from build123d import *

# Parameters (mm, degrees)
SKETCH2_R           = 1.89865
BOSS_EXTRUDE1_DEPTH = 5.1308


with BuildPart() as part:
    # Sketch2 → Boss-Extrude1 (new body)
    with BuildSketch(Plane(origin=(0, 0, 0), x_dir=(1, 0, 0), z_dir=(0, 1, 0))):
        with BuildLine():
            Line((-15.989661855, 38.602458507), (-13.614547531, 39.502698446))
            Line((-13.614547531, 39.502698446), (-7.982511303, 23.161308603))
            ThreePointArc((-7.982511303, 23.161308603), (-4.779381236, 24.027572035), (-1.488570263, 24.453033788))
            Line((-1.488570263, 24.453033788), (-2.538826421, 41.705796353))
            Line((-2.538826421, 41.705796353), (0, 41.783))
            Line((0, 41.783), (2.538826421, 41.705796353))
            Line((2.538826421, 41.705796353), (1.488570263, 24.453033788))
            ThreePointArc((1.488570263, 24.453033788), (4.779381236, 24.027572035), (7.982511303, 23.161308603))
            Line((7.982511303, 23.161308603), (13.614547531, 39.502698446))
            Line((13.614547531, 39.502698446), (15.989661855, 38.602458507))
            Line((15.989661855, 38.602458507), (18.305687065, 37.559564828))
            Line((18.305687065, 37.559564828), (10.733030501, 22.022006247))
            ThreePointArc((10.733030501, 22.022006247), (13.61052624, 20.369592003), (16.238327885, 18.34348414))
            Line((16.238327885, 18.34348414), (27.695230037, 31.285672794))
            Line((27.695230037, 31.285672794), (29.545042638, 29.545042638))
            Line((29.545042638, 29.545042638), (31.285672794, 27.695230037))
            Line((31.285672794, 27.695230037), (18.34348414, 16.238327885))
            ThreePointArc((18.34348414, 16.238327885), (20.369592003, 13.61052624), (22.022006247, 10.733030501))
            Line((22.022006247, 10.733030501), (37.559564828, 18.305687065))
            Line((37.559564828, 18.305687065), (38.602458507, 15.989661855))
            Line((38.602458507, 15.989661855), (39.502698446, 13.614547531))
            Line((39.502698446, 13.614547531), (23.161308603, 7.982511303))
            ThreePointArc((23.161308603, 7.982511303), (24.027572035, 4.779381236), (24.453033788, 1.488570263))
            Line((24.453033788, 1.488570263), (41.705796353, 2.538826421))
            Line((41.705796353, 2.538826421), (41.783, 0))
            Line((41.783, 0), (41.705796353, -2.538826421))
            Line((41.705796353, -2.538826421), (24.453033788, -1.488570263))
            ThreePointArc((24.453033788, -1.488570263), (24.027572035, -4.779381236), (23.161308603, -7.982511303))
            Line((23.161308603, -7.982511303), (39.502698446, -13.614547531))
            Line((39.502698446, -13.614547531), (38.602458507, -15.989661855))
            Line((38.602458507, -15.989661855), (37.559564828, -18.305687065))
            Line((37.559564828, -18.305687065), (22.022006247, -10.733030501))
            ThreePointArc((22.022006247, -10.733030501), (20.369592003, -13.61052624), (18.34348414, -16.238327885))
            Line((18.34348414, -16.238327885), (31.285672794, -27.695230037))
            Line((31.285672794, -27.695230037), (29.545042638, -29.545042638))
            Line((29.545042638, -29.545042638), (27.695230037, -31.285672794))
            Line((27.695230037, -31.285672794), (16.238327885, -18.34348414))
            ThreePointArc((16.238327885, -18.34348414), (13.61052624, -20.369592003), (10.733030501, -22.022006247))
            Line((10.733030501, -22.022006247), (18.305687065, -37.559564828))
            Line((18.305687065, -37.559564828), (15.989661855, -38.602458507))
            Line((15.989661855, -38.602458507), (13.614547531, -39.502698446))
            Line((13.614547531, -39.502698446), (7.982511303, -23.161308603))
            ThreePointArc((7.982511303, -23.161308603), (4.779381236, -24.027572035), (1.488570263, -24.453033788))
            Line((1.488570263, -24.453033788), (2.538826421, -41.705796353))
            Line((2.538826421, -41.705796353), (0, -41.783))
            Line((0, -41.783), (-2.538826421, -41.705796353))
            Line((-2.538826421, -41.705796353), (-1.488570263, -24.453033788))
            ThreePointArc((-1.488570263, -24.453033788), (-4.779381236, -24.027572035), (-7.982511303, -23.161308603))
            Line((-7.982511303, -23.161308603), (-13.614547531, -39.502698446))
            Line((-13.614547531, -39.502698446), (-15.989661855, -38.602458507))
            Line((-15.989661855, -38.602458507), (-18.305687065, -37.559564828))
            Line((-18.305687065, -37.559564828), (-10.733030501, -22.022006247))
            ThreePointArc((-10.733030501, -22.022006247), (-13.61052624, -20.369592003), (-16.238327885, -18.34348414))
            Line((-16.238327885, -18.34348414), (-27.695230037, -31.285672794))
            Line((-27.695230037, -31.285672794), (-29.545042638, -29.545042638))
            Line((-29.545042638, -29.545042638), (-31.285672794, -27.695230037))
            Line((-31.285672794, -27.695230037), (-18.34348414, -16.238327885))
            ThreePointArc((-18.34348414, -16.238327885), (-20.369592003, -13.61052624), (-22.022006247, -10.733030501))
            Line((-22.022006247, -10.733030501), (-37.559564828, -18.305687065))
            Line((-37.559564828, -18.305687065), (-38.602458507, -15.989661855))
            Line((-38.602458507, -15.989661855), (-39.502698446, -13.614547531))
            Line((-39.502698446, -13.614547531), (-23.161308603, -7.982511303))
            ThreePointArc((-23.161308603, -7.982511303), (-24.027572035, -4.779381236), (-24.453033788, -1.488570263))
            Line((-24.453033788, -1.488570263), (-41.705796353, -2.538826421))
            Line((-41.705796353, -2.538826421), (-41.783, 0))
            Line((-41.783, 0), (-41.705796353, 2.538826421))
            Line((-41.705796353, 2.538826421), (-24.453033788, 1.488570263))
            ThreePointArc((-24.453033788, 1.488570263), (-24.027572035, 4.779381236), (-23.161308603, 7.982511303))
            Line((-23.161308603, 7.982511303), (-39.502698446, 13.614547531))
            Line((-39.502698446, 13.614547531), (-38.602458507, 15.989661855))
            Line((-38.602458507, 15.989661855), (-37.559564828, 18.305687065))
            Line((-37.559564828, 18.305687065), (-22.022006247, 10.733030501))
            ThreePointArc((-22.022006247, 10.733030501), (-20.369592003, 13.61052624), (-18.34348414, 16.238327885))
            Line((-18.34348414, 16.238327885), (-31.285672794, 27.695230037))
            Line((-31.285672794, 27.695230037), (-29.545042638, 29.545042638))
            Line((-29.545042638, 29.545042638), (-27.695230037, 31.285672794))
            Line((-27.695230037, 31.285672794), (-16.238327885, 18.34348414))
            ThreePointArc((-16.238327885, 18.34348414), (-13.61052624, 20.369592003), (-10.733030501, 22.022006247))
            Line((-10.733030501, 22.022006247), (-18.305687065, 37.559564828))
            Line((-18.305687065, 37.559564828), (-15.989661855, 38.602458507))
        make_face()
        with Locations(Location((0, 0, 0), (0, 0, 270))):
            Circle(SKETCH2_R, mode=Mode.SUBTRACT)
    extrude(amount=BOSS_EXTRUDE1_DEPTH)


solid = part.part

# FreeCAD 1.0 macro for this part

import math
import FreeCAD as App
import Part
import Sketcher

V = App.Vector
Q = App.Units.Quantity

doc = App.newDocument("Part")
body = doc.addObject("PartDesign::Body", "Body")

sketch1 = doc.addObject("Sketcher::SketchObject", "Sketch")
body.addObject(sketch1)
sketch1.AttachmentSupport = (doc.XZ_Plane, [""])
sketch1.MapMode = "FlatFace"
sketch1.addGeometry([
    Part.LineSegment(V(-13.614548, -39.502698, 0), V(-15.989662, -38.602459, 0)),
    Part.LineSegment(V(-15.989662, -38.602459, 0), V(-18.305687, -37.559565, 0)),
    Part.LineSegment(V(-18.305687, -37.559565, 0), V(-10.733031, -22.022006, 0)),
    Part.ArcOfCircle(Part.Circle(V(0, 0, 0), V(0, 0, 1), 24.4983), math.radians(-131.516437), math.radians(-115.983563)),
    Part.LineSegment(V(-16.238328, -18.343484, 0), V(-27.69523, -31.285673, 0)),
    Part.LineSegment(V(-27.69523, -31.285673, 0), V(-29.545043, -29.545043, 0)),
    Part.LineSegment(V(-29.545043, -29.545043, 0), V(-31.285673, -27.69523, 0)),
    Part.LineSegment(V(-31.285673, -27.69523, 0), V(-18.343484, -16.238328, 0)),
    Part.ArcOfCircle(Part.Circle(V(0, 0, 0), V(0, 0, 1), 24.4983), math.radians(-154.016437), math.radians(-138.483563)),
    Part.LineSegment(V(-22.022006, -10.733031, 0), V(-37.559565, -18.305687, 0)),
    Part.LineSegment(V(-37.559565, -18.305687, 0), V(-38.602459, -15.989662, 0)),
    Part.LineSegment(V(-38.602459, -15.989662, 0), V(-39.502698, -13.614548, 0)),
    Part.LineSegment(V(-39.502698, -13.614548, 0), V(-23.161309, -7.982511, 0)),
    Part.ArcOfCircle(Part.Circle(V(0, 0, 0), V(0, 0, 1), 24.4983), math.radians(-176.516437), math.radians(-160.983563)),
    Part.LineSegment(V(-24.453034, -1.48857, 0), V(-41.705796, -2.538826, 0)),
    Part.LineSegment(V(-41.705796, -2.538826, 0), V(-41.783, 0, 0)),
    Part.LineSegment(V(-41.783, 0, 0), V(-41.705796, 2.538826, 0)),
    Part.LineSegment(V(-41.705796, 2.538826, 0), V(-24.453034, 1.48857, 0)),
    Part.ArcOfCircle(Part.Circle(V(0, 0, 0), V(0, 0, 1), 24.4983), math.radians(160.983563), math.radians(176.516437)),
    Part.LineSegment(V(-23.161309, 7.982511, 0), V(-39.502698, 13.614548, 0)),
    Part.LineSegment(V(-39.502698, 13.614548, 0), V(-38.602459, 15.989662, 0)),
    Part.LineSegment(V(-38.602459, 15.989662, 0), V(-37.559565, 18.305687, 0)),
    Part.LineSegment(V(-37.559565, 18.305687, 0), V(-22.022006, 10.733031, 0)),
    Part.ArcOfCircle(Part.Circle(V(0, 0, 0), V(0, 0, 1), 24.4983), math.radians(138.483563), math.radians(154.016437)),
    Part.LineSegment(V(-18.343484, 16.238328, 0), V(-31.285673, 27.69523, 0)),
    Part.LineSegment(V(-31.285673, 27.69523, 0), V(-29.545043, 29.545043, 0)),
    Part.LineSegment(V(-29.545043, 29.545043, 0), V(-27.69523, 31.285673, 0)),
    Part.LineSegment(V(-27.69523, 31.285673, 0), V(-16.238328, 18.343484, 0)),
    Part.ArcOfCircle(Part.Circle(V(0, 0, 0), V(0, 0, 1), 24.4983), math.radians(115.983563), math.radians(131.516437)),
    Part.LineSegment(V(-10.733031, 22.022006, 0), V(-18.305687, 37.559565, 0)),
    Part.LineSegment(V(-18.305687, 37.559565, 0), V(-15.989662, 38.602459, 0)),
    Part.LineSegment(V(-15.989662, 38.602459, 0), V(-13.614548, 39.502698, 0)),
    Part.LineSegment(V(-13.614548, 39.502698, 0), V(-7.982511, 23.161309, 0)),
    Part.ArcOfCircle(Part.Circle(V(0, 0, 0), V(0, 0, 1), 24.4983), math.radians(93.483563), math.radians(109.016437)),
    Part.LineSegment(V(-1.48857, 24.453034, 0), V(-2.538826, 41.705796, 0)),
    Part.LineSegment(V(-2.538826, 41.705796, 0), V(0, 41.783, 0)),
    Part.LineSegment(V(0, 41.783, 0), V(2.538826, 41.705796, 0)),
    Part.LineSegment(V(2.538826, 41.705796, 0), V(1.48857, 24.453034, 0)),
    Part.ArcOfCircle(Part.Circle(V(0, 0, 0), V(0, 0, 1), 24.4983), math.radians(70.983563), math.radians(86.516437)),
    Part.LineSegment(V(7.982511, 23.161309, 0), V(13.614548, 39.502698, 0)),
    Part.LineSegment(V(13.614548, 39.502698, 0), V(15.989662, 38.602459, 0)),
    Part.LineSegment(V(15.989662, 38.602459, 0), V(18.305687, 37.559565, 0)),
    Part.LineSegment(V(18.305687, 37.559565, 0), V(10.733031, 22.022006, 0)),
    Part.ArcOfCircle(Part.Circle(V(0, 0, 0), V(0, 0, 1), 24.4983), math.radians(48.483563), math.radians(64.016437)),
    Part.LineSegment(V(16.238328, 18.343484, 0), V(27.69523, 31.285673, 0)),
    Part.LineSegment(V(27.69523, 31.285673, 0), V(29.545043, 29.545043, 0)),
    Part.LineSegment(V(29.545043, 29.545043, 0), V(31.285673, 27.69523, 0)),
    Part.LineSegment(V(31.285673, 27.69523, 0), V(18.343484, 16.238328, 0)),
    Part.ArcOfCircle(Part.Circle(V(0, 0, 0), V(0, 0, 1), 24.4983), math.radians(25.983563), math.radians(41.516437)),
    Part.LineSegment(V(22.022006, 10.733031, 0), V(37.559565, 18.305687, 0)),
    Part.LineSegment(V(37.559565, 18.305687, 0), V(38.602459, 15.989662, 0)),
    Part.LineSegment(V(38.602459, 15.989662, 0), V(39.502698, 13.614548, 0)),
    Part.LineSegment(V(39.502698, 13.614548, 0), V(23.161309, 7.982511, 0)),
    Part.ArcOfCircle(Part.Circle(V(0, 0, 0), V(0, 0, 1), 24.4983), math.radians(3.483563), math.radians(19.016437)),
    Part.LineSegment(V(24.453034, 1.48857, 0), V(41.705796, 2.538826, 0)),
    Part.LineSegment(V(41.705796, 2.538826, 0), V(41.783, 0, 0)),
    Part.LineSegment(V(41.783, 0, 0), V(41.705796, -2.538826, 0)),
    Part.LineSegment(V(41.705796, -2.538826, 0), V(24.453034, -1.48857, 0)),
    Part.ArcOfCircle(Part.Circle(V(0, 0, 0), V(0, 0, 1), 24.4983), math.radians(-19.016437), math.radians(-3.483563)),
    Part.LineSegment(V(23.161309, -7.982511, 0), V(39.502698, -13.614548, 0)),
    Part.LineSegment(V(39.502698, -13.614548, 0), V(38.602459, -15.989662, 0)),
    Part.LineSegment(V(38.602459, -15.989662, 0), V(37.559565, -18.305687, 0)),
    Part.LineSegment(V(37.559565, -18.305687, 0), V(22.022006, -10.733031, 0)),
    Part.ArcOfCircle(Part.Circle(V(0, 0, 0), V(0, 0, 1), 24.4983), math.radians(-41.516437), math.radians(-25.983563)),
    Part.LineSegment(V(18.343484, -16.238328, 0), V(31.285673, -27.69523, 0)),
    Part.LineSegment(V(31.285673, -27.69523, 0), V(29.545043, -29.545043, 0)),
    Part.LineSegment(V(29.545043, -29.545043, 0), V(27.69523, -31.285673, 0)),
    Part.LineSegment(V(27.69523, -31.285673, 0), V(16.238328, -18.343484, 0)),
    Part.ArcOfCircle(Part.Circle(V(0, 0, 0), V(0, 0, 1), 24.4983), math.radians(-64.016437), math.radians(-48.483563)),
    Part.LineSegment(V(10.733031, -22.022006, 0), V(18.305687, -37.559565, 0)),
    Part.LineSegment(V(18.305687, -37.559565, 0), V(15.989662, -38.602459, 0)),
    Part.LineSegment(V(15.989662, -38.602459, 0), V(13.614548, -39.502698, 0)),
    Part.LineSegment(V(13.614548, -39.502698, 0), V(7.982511, -23.161309, 0)),
    Part.ArcOfCircle(Part.Circle(V(0, 0, 0), V(0, 0, 1), 24.4983), math.radians(-86.516437), math.radians(-70.983563)),
    Part.LineSegment(V(1.48857, -24.453034, 0), V(2.538826, -41.705796, 0)),
    Part.LineSegment(V(2.538826, -41.705796, 0), V(0, -41.783, 0)),
    Part.LineSegment(V(0, -41.783, 0), V(-2.538826, -41.705796, 0)),
    Part.LineSegment(V(-2.538826, -41.705796, 0), V(-1.48857, -24.453034, 0)),
    Part.ArcOfCircle(Part.Circle(V(0, 0, 0), V(0, 0, 1), 24.4983), math.radians(-109.016437), math.radians(-93.483563)),
    Part.LineSegment(V(-7.982511, -23.161309, 0), V(-13.614548, -39.502698, 0)),
    Part.Circle(V(0, 0, 0), V(0, 0, 1), 1.89865),
], False)
sketch1.addConstraint([
    Sketcher.Constraint("Coincident", 0, 2, 1, 1),
    Sketcher.Constraint("Coincident", 1, 2, 2, 1),
    Sketcher.Constraint("Coincident", 2, 2, 3, 2),
    Sketcher.Constraint("Coincident", 3, 1, 4, 1),
    Sketcher.Constraint("Coincident", 4, 2, 5, 1),
    Sketcher.Constraint("Coincident", 5, 2, 6, 1),
    Sketcher.Constraint("Coincident", 6, 2, 7, 1),
    Sketcher.Constraint("Coincident", 7, 2, 8, 2),
    Sketcher.Constraint("Coincident", 8, 1, 9, 1),
    Sketcher.Constraint("Coincident", 9, 2, 10, 1),
    Sketcher.Constraint("Coincident", 10, 2, 11, 1),
    Sketcher.Constraint("Coincident", 11, 2, 12, 1),
    Sketcher.Constraint("Coincident", 12, 2, 13, 2),
    Sketcher.Constraint("Coincident", 13, 1, 14, 1),
    Sketcher.Constraint("Coincident", 14, 2, 15, 1),
    Sketcher.Constraint("Coincident", 15, 2, 16, 1),
    Sketcher.Constraint("Coincident", 16, 2, 17, 1),
    Sketcher.Constraint("Coincident", 17, 2, 18, 2),
    Sketcher.Constraint("Coincident", 18, 1, 19, 1),
    Sketcher.Constraint("Coincident", 19, 2, 20, 1),
    Sketcher.Constraint("Coincident", 20, 2, 21, 1),
    Sketcher.Constraint("Coincident", 21, 2, 22, 1),
    Sketcher.Constraint("Coincident", 22, 2, 23, 2),
    Sketcher.Constraint("Coincident", 23, 1, 24, 1),
    Sketcher.Constraint("Coincident", 24, 2, 25, 1),
    Sketcher.Constraint("Coincident", 25, 2, 26, 1),
    Sketcher.Constraint("Coincident", 26, 2, 27, 1),
    Sketcher.Constraint("Coincident", 27, 2, 28, 2),
    Sketcher.Constraint("Coincident", 28, 1, 29, 1),
    Sketcher.Constraint("Coincident", 29, 2, 30, 1),
    Sketcher.Constraint("Coincident", 30, 2, 31, 1),
    Sketcher.Constraint("Coincident", 31, 2, 32, 1),
    Sketcher.Constraint("Coincident", 32, 2, 33, 2),
    Sketcher.Constraint("Coincident", 33, 1, 34, 1),
    Sketcher.Constraint("Coincident", 34, 2, 35, 1),
    Sketcher.Constraint("Coincident", 35, 2, 36, 1),
    Sketcher.Constraint("Coincident", 36, 2, 37, 1),
    Sketcher.Constraint("Coincident", 37, 2, 38, 2),
    Sketcher.Constraint("Coincident", 38, 1, 39, 1),
    Sketcher.Constraint("Coincident", 39, 2, 40, 1),
    Sketcher.Constraint("Coincident", 40, 2, 41, 1),
    Sketcher.Constraint("Coincident", 41, 2, 42, 1),
    Sketcher.Constraint("Coincident", 42, 2, 43, 2),
    Sketcher.Constraint("Coincident", 43, 1, 44, 1),
    Sketcher.Constraint("Coincident", 44, 2, 45, 1),
    Sketcher.Constraint("Coincident", 45, 2, 46, 1),
    Sketcher.Constraint("Coincident", 46, 2, 47, 1),
    Sketcher.Constraint("Coincident", 47, 2, 48, 2),
    Sketcher.Constraint("Coincident", 48, 1, 49, 1),
    Sketcher.Constraint("Coincident", 49, 2, 50, 1),
    Sketcher.Constraint("Coincident", 50, 2, 51, 1),
    Sketcher.Constraint("Coincident", 51, 2, 52, 1),
    Sketcher.Constraint("Coincident", 52, 2, 53, 2),
    Sketcher.Constraint("Coincident", 53, 1, 54, 1),
    Sketcher.Constraint("Coincident", 54, 2, 55, 1),
    Sketcher.Constraint("Coincident", 55, 2, 56, 1),
    Sketcher.Constraint("Coincident", 56, 2, 57, 1),
    Sketcher.Constraint("Coincident", 57, 2, 58, 2),
    Sketcher.Constraint("Coincident", 58, 1, 59, 1),
    Sketcher.Constraint("Coincident", 59, 2, 60, 1),
    Sketcher.Constraint("Coincident", 60, 2, 61, 1),
    Sketcher.Constraint("Coincident", 61, 2, 62, 1),
    Sketcher.Constraint("Coincident", 62, 2, 63, 2),
    Sketcher.Constraint("Coincident", 63, 1, 64, 1),
    Sketcher.Constraint("Coincident", 64, 2, 65, 1),
    Sketcher.Constraint("Coincident", 65, 2, 66, 1),
    Sketcher.Constraint("Coincident", 66, 2, 67, 1),
    Sketcher.Constraint("Coincident", 67, 2, 68, 2),
    Sketcher.Constraint("Coincident", 68, 1, 69, 1),
    Sketcher.Constraint("Coincident", 69, 2, 70, 1),
    Sketcher.Constraint("Coincident", 70, 2, 71, 1),
    Sketcher.Constraint("Coincident", 71, 2, 72, 1),
    Sketcher.Constraint("Coincident", 72, 2, 73, 2),
    Sketcher.Constraint("Coincident", 73, 1, 74, 1),
    Sketcher.Constraint("Coincident", 74, 2, 75, 1),
    Sketcher.Constraint("Coincident", 75, 2, 76, 1),
    Sketcher.Constraint("Coincident", 76, 2, 77, 1),
    Sketcher.Constraint("Coincident", 77, 2, 78, 2),
    Sketcher.Constraint("Coincident", 78, 1, 79, 1),
    Sketcher.Constraint("Coincident", 79, 2, 0, 1),
    Sketcher.Constraint("Coincident", 3, 3, -1, 1),
    Sketcher.Constraint("Coincident", 8, 3, -1, 1),
    Sketcher.Constraint("Coincident", 13, 3, -1, 1),
    Sketcher.Constraint("Coincident", 18, 3, -1, 1),
    Sketcher.Constraint("Coincident", 23, 3, -1, 1),
    Sketcher.Constraint("Coincident", 28, 3, -1, 1),
    Sketcher.Constraint("Coincident", 33, 3, -1, 1),
    Sketcher.Constraint("Coincident", 38, 3, -1, 1),
    Sketcher.Constraint("Coincident", 43, 3, -1, 1),
    Sketcher.Constraint("Coincident", 48, 3, -1, 1),
    Sketcher.Constraint("Coincident", 53, 3, -1, 1),
    Sketcher.Constraint("Coincident", 58, 3, -1, 1),
    Sketcher.Constraint("Coincident", 63, 3, -1, 1),
    Sketcher.Constraint("Coincident", 68, 3, -1, 1),
    Sketcher.Constraint("Coincident", 73, 3, -1, 1),
    Sketcher.Constraint("Coincident", 78, 3, -1, 1),
    Sketcher.Constraint("Coincident", 80, 3, -1, 1),
    Sketcher.Constraint("Equal", 3, 8),
    Sketcher.Constraint("Equal", 8, 13),
    Sketcher.Constraint("Equal", 13, 18),
    Sketcher.Constraint("Equal", 18, 23),
    Sketcher.Constraint("Equal", 23, 28),
    Sketcher.Constraint("Equal", 28, 33),
    Sketcher.Constraint("Equal", 33, 38),
    Sketcher.Constraint("Equal", 38, 43),
    Sketcher.Constraint("Equal", 43, 48),
    Sketcher.Constraint("Equal", 48, 53),
    Sketcher.Constraint("Equal", 53, 58),
    Sketcher.Constraint("Equal", 58, 63),
    Sketcher.Constraint("Equal", 63, 68),
    Sketcher.Constraint("Equal", 68, 73),
    Sketcher.Constraint("Equal", 73, 78),
    Sketcher.Constraint("Symmetric", 0, 2, 40, 2, -1, 1),
    Sketcher.Constraint("Symmetric", 1, 2, 41, 2, -1, 1),
    Sketcher.Constraint("Symmetric", 4, 2, 44, 2, -1, 1),
    Sketcher.Constraint("Symmetric", 5, 2, 45, 2, -1, 1),
    Sketcher.Constraint("Symmetric", 6, 2, 46, 2, -1, 1),
    Sketcher.Constraint("Symmetric", 9, 2, 49, 2, -1, 1),
    Sketcher.Constraint("Symmetric", 10, 2, 50, 2, -1, 1),
    Sketcher.Constraint("Symmetric", 11, 2, 51, 2, -1, 1),
    Sketcher.Constraint("Symmetric", 14, 2, 54, 2, -1, 1),
    Sketcher.Constraint("Symmetric", 15, 2, 55, 2, -1, 1),
    Sketcher.Constraint("Symmetric", 16, 2, 56, 2, -1, 1),
    Sketcher.Constraint("Symmetric", 19, 2, 59, 2, -1, 1),
    Sketcher.Constraint("Symmetric", 20, 2, 60, 2, -1, 1),
    Sketcher.Constraint("Symmetric", 21, 2, 61, 2, -1, 1),
    Sketcher.Constraint("Symmetric", 24, 2, 64, 2, -1, 1),
    Sketcher.Constraint("Symmetric", 25, 2, 65, 2, -1, 1),
    Sketcher.Constraint("Symmetric", 26, 2, 66, 2, -1, 1),
    Sketcher.Constraint("Symmetric", 29, 2, 69, 2, -1, 1),
    Sketcher.Constraint("Symmetric", 30, 2, 70, 2, -1, 1),
    Sketcher.Constraint("Symmetric", 31, 2, 71, 2, -1, 1),
    Sketcher.Constraint("Symmetric", 34, 2, 74, 2, -1, 1),
    Sketcher.Constraint("Symmetric", 35, 2, 75, 2, -1, 1),
    Sketcher.Constraint("Symmetric", 36, 2, 76, 2, -1, 1),
    Sketcher.Constraint("Symmetric", 39, 2, 79, 2, -1, 1),
    Sketcher.Constraint("Symmetric", 34, 2, 36, 2, -2),
    Sketcher.Constraint("Symmetric", 31, 2, 39, 2, -2),
    Sketcher.Constraint("Symmetric", 30, 2, 40, 2, -2),
    Sketcher.Constraint("Symmetric", 29, 2, 41, 2, -2),
    Sketcher.Constraint("Symmetric", 26, 2, 44, 2, -2),
    Sketcher.Constraint("Symmetric", 25, 2, 45, 2, -2),
    Sketcher.Constraint("Symmetric", 24, 2, 46, 2, -2),
    Sketcher.Constraint("Symmetric", 21, 2, 49, 2, -2),
    Sketcher.Constraint("Symmetric", 20, 2, 50, 2, -2),
    Sketcher.Constraint("Symmetric", 19, 2, 51, 2, -2),
    Sketcher.Constraint("Symmetric", 16, 2, 54, 2, -2),
    Sketcher.Constraint("PointOnObject", 15, 2, -1),
    Sketcher.Constraint("PointOnObject", 35, 2, -2),
    Sketcher.Constraint("Perpendicular", 0, 20),
    Sketcher.Constraint("Perpendicular", 1, 21),
    Sketcher.Constraint("Perpendicular", 2, 22),
    Sketcher.Constraint("Perpendicular", 4, 24),
    Sketcher.Constraint("Perpendicular", 5, 25),
    Sketcher.Constraint("Perpendicular", 7, 27),
    Sketcher.Constraint("Perpendicular", 9, 29),
    Sketcher.Constraint("Perpendicular", 12, 32),
    Sketcher.Constraint("Perpendicular", 14, 34),
    Sketcher.Constraint("Perpendicular", 15, 35),
    Sketcher.Constraint("Perpendicular", 17, 37),
    Sketcher.Constraint("Perpendicular", 19, 39),
    Sketcher.Constraint("Perpendicular", 22, 42),
    Sketcher.Constraint("Perpendicular", 24, 44),
    Sketcher.Constraint("Perpendicular", 27, 47),
    Sketcher.Constraint("Perpendicular", 29, 49),
    Sketcher.Constraint("Perpendicular", 32, 52),
    Sketcher.Constraint("Perpendicular", 34, 54),
    Sketcher.Constraint("Perpendicular", 37, 57),
    Sketcher.Constraint("Perpendicular", 39, 59),
    Sketcher.Constraint("Perpendicular", 42, 62),
    Sketcher.Constraint("Perpendicular", 44, 64),
    Sketcher.Constraint("Perpendicular", 47, 67),
    Sketcher.Constraint("Perpendicular", 49, 69),
    Sketcher.Constraint("Perpendicular", 52, 72),
    Sketcher.Constraint("Perpendicular", 54, 74),
    Sketcher.Constraint("Perpendicular", 57, 77),
    Sketcher.Constraint("Perpendicular", 59, 79),
    Sketcher.Constraint("Horizontal", 33, 1, 37, 2),
    Sketcher.Constraint("Horizontal", 32, 2, 38, 1),
    Sketcher.Constraint("Horizontal", 28, 1, 42, 2),
    Sketcher.Constraint("Horizontal", 27, 2, 43, 1),
    Sketcher.Constraint("Equal", 0, 1),
    Sketcher.Constraint("Equal", 2, 4),
    Sketcher.Constraint("Equal", 1, 5),
    Sketcher.Constraint("Equal", 5, 6),
    Sketcher.Constraint("Equal", 4, 7),
    Sketcher.Constraint("Equal", 7, 9),
    Sketcher.Constraint("Equal", 6, 10),
    Sketcher.Constraint("Equal", 10, 11),
    Sketcher.Constraint("Equal", 9, 12),
    Sketcher.Constraint("Equal", 12, 14),
    Sketcher.Constraint("Equal", 11, 15),
    Sketcher.Constraint("Equal", 29, 32),
    Sketcher.Constraint("Equal", 32, 34),
    Sketcher.Constraint("Equal", 31, 35),
    Sketcher.Constraint("Distance", 0, Q("0.1 in")),
    Sketcher.Constraint("Diameter", 80, Q("0.1495 in")),
    Sketcher.Constraint("Radius", 3, Q("0.9645 in")),
    Sketcher.Constraint("DistanceX", 15, 2, -1, 1, Q("1.645 in")),
    Sketcher.Constraint("Distance", 2, Q("0.6805 in")),
    Sketcher.Constraint("DistanceX", 11, 2, -1, 1, 39.502698),
    Sketcher.Constraint("DistanceX", 0, 2, -1, 1, 15.989662),
    Sketcher.Constraint("DistanceX", 2, 2, -1, 1, 10.733031),
    Sketcher.Constraint("DistanceX", 4, 2, -1, 1, 27.69523),
    Sketcher.Constraint("DistanceX", 12, 2, -1, 1, 23.161309),
    Sketcher.Constraint("DistanceY", 13, 1, -1, 1, 1.48857),
    Sketcher.Constraint("DistanceX", 3, 1, -1, 1, 16.238328),
])
pad1 = doc.addObject("PartDesign::Pad", "Pad")
body.addObject(pad1)
pad1.Profile = sketch1
pad1.Length = Q("0.202 in")
pad1.Reversed = True

doc.recompute()
